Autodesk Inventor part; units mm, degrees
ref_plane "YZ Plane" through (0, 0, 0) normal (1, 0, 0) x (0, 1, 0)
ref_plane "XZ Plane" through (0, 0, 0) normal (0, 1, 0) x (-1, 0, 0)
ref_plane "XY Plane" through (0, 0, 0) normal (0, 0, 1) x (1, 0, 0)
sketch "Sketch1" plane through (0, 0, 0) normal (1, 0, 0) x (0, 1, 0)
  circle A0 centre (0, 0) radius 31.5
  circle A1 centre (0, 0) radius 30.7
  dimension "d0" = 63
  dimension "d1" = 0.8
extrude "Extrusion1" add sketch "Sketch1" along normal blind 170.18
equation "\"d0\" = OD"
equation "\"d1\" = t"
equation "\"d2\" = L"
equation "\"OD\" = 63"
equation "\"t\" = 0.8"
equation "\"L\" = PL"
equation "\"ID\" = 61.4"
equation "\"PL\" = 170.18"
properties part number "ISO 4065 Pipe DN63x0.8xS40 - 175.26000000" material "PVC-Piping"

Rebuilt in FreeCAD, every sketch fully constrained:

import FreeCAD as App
import Part
import Sketcher

V = App.Vector

doc = App.newDocument("Part")
params = doc.addObject("Spreadsheet::Sheet", "Params")
for row, (alias, value) in enumerate([
    ("sketch1_diameter", "63 mm"),
    ("sketch1_diameter2", "61.4 mm"),
    ("pad1_length", "170.18 mm"),
], start=1):
    params.set(f"A{row}", alias)
    params.set(f"B{row}", "=" + value)
    params.setAlias(f"B{row}", alias)

body = doc.addObject("PartDesign::Body", "Body")

# Sketch on YZ plane
sketch1 = body.newObject("Sketcher::SketchObject", "Sketch")
sketch1.AttachmentSupport = (doc.getObject("YZ_Plane"), [""])
sketch1.MapMode = "FlatFace"
sketch1.addGeometry(Part.Circle(V(0, 0, 0), V(0, 0, 1), 31.5), False)
sketch1.addGeometry(Part.Circle(V(0, 0, 0), V(0, 0, 1), 30.7), False)
sketch1.addConstraint(Sketcher.Constraint("Coincident", 0, 3, -1, 1))
sketch1.addConstraint(Sketcher.Constraint("Coincident", 1, 3, -1, 1))
sketch1.addConstraint(Sketcher.Constraint("Diameter", 0, 63.0))
sketch1.addConstraint(Sketcher.Constraint("Diameter", 1, 61.4))
sketch1.setExpression("Constraints[2]", "Params.sketch1_diameter")
sketch1.setExpression("Constraints[3]", "Params.sketch1_diameter2")
pad1 = body.newObject("PartDesign::Pad", "Pad")
pad1.Profile = sketch1
pad1.setExpression("Length", "Params.pad1_length")

doc.recompute()
